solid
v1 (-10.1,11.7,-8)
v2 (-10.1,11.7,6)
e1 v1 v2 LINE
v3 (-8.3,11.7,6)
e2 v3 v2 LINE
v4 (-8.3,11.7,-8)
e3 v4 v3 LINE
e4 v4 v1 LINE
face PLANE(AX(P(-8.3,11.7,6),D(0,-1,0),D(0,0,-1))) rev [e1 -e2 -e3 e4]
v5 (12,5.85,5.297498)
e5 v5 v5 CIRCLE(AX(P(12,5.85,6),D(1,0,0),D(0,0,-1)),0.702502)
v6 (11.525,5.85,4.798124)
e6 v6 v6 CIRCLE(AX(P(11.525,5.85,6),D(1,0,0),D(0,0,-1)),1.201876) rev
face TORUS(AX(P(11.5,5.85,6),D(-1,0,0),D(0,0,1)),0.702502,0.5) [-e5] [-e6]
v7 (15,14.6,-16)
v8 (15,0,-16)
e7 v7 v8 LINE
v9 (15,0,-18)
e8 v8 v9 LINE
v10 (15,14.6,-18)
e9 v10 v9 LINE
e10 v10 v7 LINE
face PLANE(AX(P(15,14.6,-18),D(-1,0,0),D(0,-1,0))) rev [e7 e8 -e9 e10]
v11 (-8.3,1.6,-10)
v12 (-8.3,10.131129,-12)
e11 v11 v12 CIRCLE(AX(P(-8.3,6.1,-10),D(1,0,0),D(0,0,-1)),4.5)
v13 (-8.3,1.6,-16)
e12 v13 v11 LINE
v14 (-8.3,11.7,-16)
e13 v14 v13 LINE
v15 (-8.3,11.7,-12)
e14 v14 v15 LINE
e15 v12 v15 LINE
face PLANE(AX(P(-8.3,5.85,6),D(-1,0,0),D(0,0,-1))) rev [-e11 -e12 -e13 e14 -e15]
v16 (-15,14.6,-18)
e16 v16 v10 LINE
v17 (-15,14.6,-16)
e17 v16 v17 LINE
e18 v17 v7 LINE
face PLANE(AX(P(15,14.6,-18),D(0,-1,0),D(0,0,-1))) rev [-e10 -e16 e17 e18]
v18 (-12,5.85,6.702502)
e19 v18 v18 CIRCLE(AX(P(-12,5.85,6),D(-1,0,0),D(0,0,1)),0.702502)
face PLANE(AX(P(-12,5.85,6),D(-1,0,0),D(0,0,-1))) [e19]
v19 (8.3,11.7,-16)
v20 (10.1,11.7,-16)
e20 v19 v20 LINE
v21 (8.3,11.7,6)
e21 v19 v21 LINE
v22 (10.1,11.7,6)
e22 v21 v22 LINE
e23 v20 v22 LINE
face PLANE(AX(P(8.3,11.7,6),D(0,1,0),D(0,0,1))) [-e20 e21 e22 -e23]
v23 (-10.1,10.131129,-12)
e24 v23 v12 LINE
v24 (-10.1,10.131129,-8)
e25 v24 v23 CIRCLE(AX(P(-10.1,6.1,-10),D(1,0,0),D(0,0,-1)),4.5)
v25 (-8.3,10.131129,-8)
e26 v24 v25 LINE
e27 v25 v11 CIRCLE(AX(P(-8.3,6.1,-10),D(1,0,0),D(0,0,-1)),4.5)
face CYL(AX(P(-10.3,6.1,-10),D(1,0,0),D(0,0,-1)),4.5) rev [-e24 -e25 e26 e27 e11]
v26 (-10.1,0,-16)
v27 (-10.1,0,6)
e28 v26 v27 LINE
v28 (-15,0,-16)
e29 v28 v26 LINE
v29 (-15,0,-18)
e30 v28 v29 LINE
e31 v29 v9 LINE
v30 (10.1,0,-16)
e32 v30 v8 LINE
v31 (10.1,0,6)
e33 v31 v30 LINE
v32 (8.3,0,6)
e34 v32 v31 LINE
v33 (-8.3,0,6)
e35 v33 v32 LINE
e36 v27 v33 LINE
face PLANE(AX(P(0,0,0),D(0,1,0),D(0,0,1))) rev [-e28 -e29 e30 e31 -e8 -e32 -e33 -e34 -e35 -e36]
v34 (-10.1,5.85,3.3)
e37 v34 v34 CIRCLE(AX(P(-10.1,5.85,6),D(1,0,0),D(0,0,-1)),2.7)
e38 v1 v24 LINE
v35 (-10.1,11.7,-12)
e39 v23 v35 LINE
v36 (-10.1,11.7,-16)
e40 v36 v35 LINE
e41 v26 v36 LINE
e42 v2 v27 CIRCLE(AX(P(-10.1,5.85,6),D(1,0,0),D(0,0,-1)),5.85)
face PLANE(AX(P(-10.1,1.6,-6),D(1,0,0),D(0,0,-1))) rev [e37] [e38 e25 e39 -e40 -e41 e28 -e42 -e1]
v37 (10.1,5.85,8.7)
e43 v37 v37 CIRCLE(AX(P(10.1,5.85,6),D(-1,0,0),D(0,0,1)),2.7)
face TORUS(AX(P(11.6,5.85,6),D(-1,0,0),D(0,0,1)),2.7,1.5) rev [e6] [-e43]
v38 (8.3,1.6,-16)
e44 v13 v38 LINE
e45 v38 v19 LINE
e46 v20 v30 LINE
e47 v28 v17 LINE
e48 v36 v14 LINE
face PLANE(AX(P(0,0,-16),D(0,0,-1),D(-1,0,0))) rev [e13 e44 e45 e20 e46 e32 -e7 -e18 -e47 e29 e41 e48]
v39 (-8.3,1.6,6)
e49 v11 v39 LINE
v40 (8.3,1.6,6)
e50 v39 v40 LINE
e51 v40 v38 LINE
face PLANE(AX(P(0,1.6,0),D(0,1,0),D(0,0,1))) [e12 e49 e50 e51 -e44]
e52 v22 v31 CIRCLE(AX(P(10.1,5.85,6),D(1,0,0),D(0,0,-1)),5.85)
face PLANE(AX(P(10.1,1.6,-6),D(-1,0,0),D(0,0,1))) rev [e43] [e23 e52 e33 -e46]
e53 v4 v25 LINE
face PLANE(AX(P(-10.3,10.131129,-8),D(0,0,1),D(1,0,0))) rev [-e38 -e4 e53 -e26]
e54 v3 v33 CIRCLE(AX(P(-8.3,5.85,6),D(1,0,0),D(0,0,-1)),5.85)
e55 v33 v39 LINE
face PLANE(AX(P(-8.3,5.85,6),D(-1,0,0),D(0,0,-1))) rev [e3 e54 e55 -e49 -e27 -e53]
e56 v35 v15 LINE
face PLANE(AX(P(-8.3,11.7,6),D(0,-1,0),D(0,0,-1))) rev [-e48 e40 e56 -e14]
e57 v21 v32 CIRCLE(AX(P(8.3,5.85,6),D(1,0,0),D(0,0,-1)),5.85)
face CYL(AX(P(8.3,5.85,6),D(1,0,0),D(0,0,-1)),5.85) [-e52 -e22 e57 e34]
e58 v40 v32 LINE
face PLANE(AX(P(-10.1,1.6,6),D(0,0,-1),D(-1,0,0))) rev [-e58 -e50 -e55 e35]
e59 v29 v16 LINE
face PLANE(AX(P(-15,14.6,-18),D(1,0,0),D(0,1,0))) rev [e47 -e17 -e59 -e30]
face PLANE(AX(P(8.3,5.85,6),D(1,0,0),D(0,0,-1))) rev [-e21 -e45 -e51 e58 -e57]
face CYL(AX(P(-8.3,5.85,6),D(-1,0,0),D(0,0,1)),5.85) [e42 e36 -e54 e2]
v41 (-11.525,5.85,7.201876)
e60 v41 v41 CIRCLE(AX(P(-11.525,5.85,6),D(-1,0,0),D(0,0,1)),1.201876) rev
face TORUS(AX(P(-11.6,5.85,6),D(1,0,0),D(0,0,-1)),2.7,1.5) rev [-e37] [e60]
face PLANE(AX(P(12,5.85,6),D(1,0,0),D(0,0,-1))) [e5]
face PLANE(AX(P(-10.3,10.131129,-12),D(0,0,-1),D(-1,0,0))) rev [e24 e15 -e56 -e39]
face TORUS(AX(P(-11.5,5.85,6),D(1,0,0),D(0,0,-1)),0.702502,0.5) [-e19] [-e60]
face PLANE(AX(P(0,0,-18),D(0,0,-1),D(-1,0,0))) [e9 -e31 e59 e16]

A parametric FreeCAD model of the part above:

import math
import FreeCAD as App
import Part
import Sketcher
from FreeCAD import Vector
Q = App.Units.Quantity


def edges_at(feature, points):
    """Names of the edges that pass closest to the given points."""
    edges = feature.Shape.Edges
    near = lambda p: min(range(len(edges)), key=lambda i: edges[i].distToShape(Part.Vertex(*p))[0])
    return sorted({f"Edge{near(p) + 1}" for p in points})


def add_polygon(sketch, points):
    """Adds a closed chain of lines whose ends are joined by coincident constraints."""
    first, n = sketch.GeometryCount, len(points)
    for a, b in zip(points, points[1:] + points[:1]):
        sketch.addGeometry(Part.LineSegment(App.Vector(*a, 0), App.Vector(*b, 0)), False)
    for i in range(n):
        sketch.addConstraint(Sketcher.Constraint("Coincident", first + i, 2, first + (i + 1) % n, 1))

doc = App.newDocument("Part")
body = doc.addObject("PartDesign::Body", "Body")

sketch1 = body.newObject("Sketcher::SketchObject", "Sketch")
sketch1.AttachmentSupport = (doc.getObject("XZ_Plane"), [""])
sketch1.MapMode = "FlatFace"
add_polygon(sketch1, [(-10, -6), (-10, 6), (10, 6), (10, -6)])
sketch1.addConstraint([
    Sketcher.Constraint("Vertical", 0),
    Sketcher.Constraint("Horizontal", 1),
    Sketcher.Constraint("Vertical", 2),
    Sketcher.Constraint("Horizontal", 3),
    Sketcher.Constraint("Symmetric", 0, 2, 2, 2, -1, 1),
    Sketcher.Constraint("DistanceY", 0, 1, 0, 2, Q("12 mm")),
    Sketcher.Constraint("DistanceX", 1, 1, 1, 2, Q("20.2 mm")),
])
pad1 = body.newObject("PartDesign::Pad", "Pad")
pad1.Profile = sketch1
pad1.Length = 1.6
pad1.Reversed = True

sketch2 = body.newObject("Sketcher::SketchObject", "Sketch001")
sketch2.AttachmentSupport = (doc.getObject("YZ_Plane"), [""])
sketch2.MapMode = "FlatFace"
sketch2.AttachmentOffset = App.Placement(Vector(0, 0, 10.1), App.Rotation())
sketch2.addGeometry([
    Part.LineSegment(Vector(12, -6, 0), Vector(12, 6, 0)),
    Part.ArcOfCircle(Part.Circle(Vector(6, 6, 0), Vector(0, 0, 1), 6), math.radians(0), math.radians(180)),
    Part.LineSegment(Vector(0, 6, 0), Vector(0, -6, 0)),
    Part.LineSegment(Vector(0, -6, 0), Vector(12, -6, 0)),
], False)
sketch2.addConstraint([
    Sketcher.Constraint("Tangent", 0, 2, 1, 1),
    Sketcher.Constraint("Tangent", 1, 2, 2, 1),
    Sketcher.Constraint("Coincident", 2, 2, 3, 1),
    Sketcher.Constraint("Coincident", 3, 2, 0, 1),
    Sketcher.Constraint("Vertical", 0),
    Sketcher.Constraint("Vertical", 2),
    Sketcher.Constraint("Horizontal", 3),
    Sketcher.Constraint("Symmetric", 1, 2, 2, 2, -1, 1),
    Sketcher.Constraint("DistanceY", 0, 1, 0, 2, Q("12 mm")),
    Sketcher.Constraint("Radius", 1, Q("5.85 mm")),
])
pad2 = body.newObject("PartDesign::Pad", "Pad001")
pad2.Profile = sketch2
pad2.Length = 1.8
pad2.Reversed = True

sketch3 = body.newObject("Sketcher::SketchObject", "Sketch002")
sketch3.AttachmentSupport = (doc.getObject("YZ_Plane"), [""])
sketch3.MapMode = "FlatFace"
sketch3.AttachmentOffset = App.Placement(Vector(0, 0, 10.1), App.Rotation())
sketch3.addGeometry(Part.Circle(Vector(5.8, 6, 0), Vector(0, 0, 1), 1.2), False)
sketch3.addConstraint([
    Sketcher.Constraint("Diameter", 0, Q("2.4 mm")),
    Sketcher.Constraint("DistanceY", -1, 1, 0, 3, Q("6 mm")),
    Sketcher.Constraint("DistanceX", -1, 1, 0, 3, Q("5.85 mm")),
])
pad3 = body.newObject("PartDesign::Pad", "Pad002")
pad3.Profile = sketch3
pad3.Length = 1.9
doc.recompute()

fillet = body.newObject("PartDesign::Fillet", "Fillet")
fillet.Base = (pad3, edges_at(pad3, [(10.1, 5.85, 4.8)]))
fillet.Radius = 1.5
doc.recompute()

fillet2 = body.newObject("PartDesign::Fillet", "Fillet001")
fillet2.Base = (fillet, edges_at(fillet, [(12, 5.85, 4.8)]))
fillet2.Radius = 0.5
doc.recompute()

mirrored = body.newObject("PartDesign::Mirrored", "Mirrored")
mirrored.Originals = [pad2, pad3]
mirrored.MirrorPlane = (doc.getObject("YZ_Plane"), [""])
body.Tip = mirrored
doc.recompute()

fillet3 = body.newObject("PartDesign::Fillet", "Fillet002")
fillet3.Base = (mirrored, edges_at(mirrored, [(-10.1, 5.85, 4.8)]))
fillet3.Radius = 1.5
doc.recompute()

fillet4 = body.newObject("PartDesign::Fillet", "Fillet003")
fillet4.Base = (fillet3, edges_at(fillet3, [(-12, 5.85, 4.8)]))
fillet4.Radius = 0.5

sketch4 = body.newObject("Sketcher::SketchObject", "Sketch003")
sketch4.AttachmentSupport = (doc.getObject("XY_Plane"), [""])
sketch4.MapMode = "FlatFace"
sketch4.AttachmentOffset = App.Placement(Vector(0, 0, -6), App.Rotation())
add_polygon(sketch4, [(-10.1, 0), (-10.1, 11.7), (-8.3, 11.7), (-8.3, 1.6), (8.3, 1.6), (8.3, 11.7), (10.1, 11.7), (10.1, 0)])
sketch4.addConstraint([
    Sketcher.Constraint("Vertical", 0),
    Sketcher.Constraint("Horizontal", 1),
    Sketcher.Constraint("Vertical", 2),
    Sketcher.Constraint("Horizontal", 3),
    Sketcher.Constraint("Vertical", 4),
    Sketcher.Constraint("Horizontal", 5),
    Sketcher.Constraint("Vertical", 6),
    Sketcher.Constraint("Horizontal", 7),
    Sketcher.Constraint("Symmetric", 6, 2, 7, 2, -1, 1),
    Sketcher.Constraint("Symmetric", 1, 2, 4, 2, -2),
    Sketcher.Constraint("DistanceX", 1, 1, 1, 2, Q("1.8 mm")),
    Sketcher.Constraint("DistanceX", 3, 1, 3, 2, Q("16.6 mm")),
    Sketcher.Constraint("DistanceY", 0, 1, 0, 2, Q("11.7 mm")),
    Sketcher.Constraint("DistanceY", 2, 2, 2, 1, Q("10.1 mm")),
])
pad4 = body.newObject("PartDesign::Pad", "Pad003")
pad4.Profile = sketch4
pad4.Length = 10
pad4.Reversed = True

sketch5 = body.newObject("Sketcher::SketchObject", "Sketch004")
sketch5.AttachmentSupport = (doc.getObject("XY_Plane"), [""])
sketch5.MapMode = "FlatFace"
sketch5.AttachmentOffset = App.Placement(Vector(0, 0, -16), App.Rotation())
add_polygon(sketch5, [(15, 15), (15, -3), (-15, -3), (-15, 15)])
sketch5.addConstraint([
    Sketcher.Constraint("Vertical", 0),
    Sketcher.Constraint("Horizontal", 1),
    Sketcher.Constraint("Vertical", 2),
    Sketcher.Constraint("Horizontal", 3),
    Sketcher.Constraint("DistanceX", 1, 2, 1, 1, Q("30 mm")),
    Sketcher.Constraint("DistanceY", 0, 2, 0, 1, Q("17.5 mm")),
    Sketcher.Constraint("DistanceX", -1, 1, 0, 2, Q("15 mm")),
    Sketcher.Constraint("DistanceY", 0, 2, -1, 1, Q("2.9 mm")),
])
pad5 = body.newObject("PartDesign::Pad", "Pad004")
pad5.Profile = sketch5
pad5.Length = 2
pad5.Reversed = True

sketch6 = body.newObject("Sketcher::SketchObject", "Sketch005")
sketch6.AttachmentSupport = (doc.getObject("YZ_Plane"), [""])
sketch6.MapMode = "FlatFace"
sketch6.AttachmentOffset = App.Placement(Vector(0, 0, -8.3), App.Rotation())
sketch6.addGeometry([
    Part.LineSegment(Vector(11.7, -12, 0), Vector(11.7, -8, 0)),
    Part.LineSegment(Vector(11.7, -8, 0), Vector(10.1, -8, 0)),
    Part.ArcOfCircle(Part.Circle(Vector(6.1, -10, 0), Vector(0, 0, 1), 4.5), math.radians(26), math.radians(334)),
    Part.LineSegment(Vector(10.1, -12, 0), Vector(11.7, -12, 0)),
], False)
sketch6.addConstraint([
    Sketcher.Constraint("Coincident", 0, 2, 1, 1),
    Sketcher.Constraint("Coincident", 1, 2, 2, 1),
    Sketcher.Constraint("Coincident", 2, 2, 3, 1),
    Sketcher.Constraint("Coincident", 3, 2, 0, 1),
    Sketcher.Constraint("Vertical", 0),
    Sketcher.Constraint("Horizontal", 1),
    Sketcher.Constraint("Horizontal", 3),
    Sketcher.Constraint("Vertical", 1, 2, 2, 2),
    Sketcher.Constraint("Radius", 2, Q("4.5 mm")),
    Sketcher.Constraint("DistanceY", 0, 1, 0, 2, Q("4 mm")),
    Sketcher.Constraint("DistanceY", 2, 3, -1, 1, Q("10 mm")),
    Sketcher.Constraint("DistanceX", -1, 1, 2, 3, Q("6.1 mm")),
    Sketcher.Constraint("DistanceX", -1, 1, 0, 2, Q("11.7 mm")),
])
pocket1 = body.newObject("PartDesign::Pocket", "Pocket")
pocket1.Profile = sketch6
pocket1.Length = 2

sketch7 = body.newObject("Sketcher::SketchObject", "Sketch006")
sketch7.AttachmentSupport = (doc.getObject("XY_Plane"), [""])
sketch7.MapMode = "FlatFace"
sketch7.AttachmentOffset = App.Placement(Vector(0, 0, -18), App.Rotation())
add_polygon(sketch7, [(15, 0), (15, -2.9), (-15, -2.9), (-15, 0)])
sketch7.addConstraint([
    Sketcher.Constraint("Vertical", 0),
    Sketcher.Constraint("Horizontal", 1),
    Sketcher.Constraint("Vertical", 2),
    Sketcher.Constraint("Horizontal", 3),
    Sketcher.Constraint("Symmetric", 2, 2, 3, 2, -1, 1),
    Sketcher.Constraint("DistanceX", 1, 2, 1, 1, Q("30 mm")),
    Sketcher.Constraint("DistanceY", 0, 2, 0, 1, Q("2.9 mm")),
])
pocket2 = body.newObject("PartDesign::Pocket", "Pocket001")
pocket2.Profile = sketch7
pocket2.Length = 2
pocket2.Reversed = True

doc.recompute()
